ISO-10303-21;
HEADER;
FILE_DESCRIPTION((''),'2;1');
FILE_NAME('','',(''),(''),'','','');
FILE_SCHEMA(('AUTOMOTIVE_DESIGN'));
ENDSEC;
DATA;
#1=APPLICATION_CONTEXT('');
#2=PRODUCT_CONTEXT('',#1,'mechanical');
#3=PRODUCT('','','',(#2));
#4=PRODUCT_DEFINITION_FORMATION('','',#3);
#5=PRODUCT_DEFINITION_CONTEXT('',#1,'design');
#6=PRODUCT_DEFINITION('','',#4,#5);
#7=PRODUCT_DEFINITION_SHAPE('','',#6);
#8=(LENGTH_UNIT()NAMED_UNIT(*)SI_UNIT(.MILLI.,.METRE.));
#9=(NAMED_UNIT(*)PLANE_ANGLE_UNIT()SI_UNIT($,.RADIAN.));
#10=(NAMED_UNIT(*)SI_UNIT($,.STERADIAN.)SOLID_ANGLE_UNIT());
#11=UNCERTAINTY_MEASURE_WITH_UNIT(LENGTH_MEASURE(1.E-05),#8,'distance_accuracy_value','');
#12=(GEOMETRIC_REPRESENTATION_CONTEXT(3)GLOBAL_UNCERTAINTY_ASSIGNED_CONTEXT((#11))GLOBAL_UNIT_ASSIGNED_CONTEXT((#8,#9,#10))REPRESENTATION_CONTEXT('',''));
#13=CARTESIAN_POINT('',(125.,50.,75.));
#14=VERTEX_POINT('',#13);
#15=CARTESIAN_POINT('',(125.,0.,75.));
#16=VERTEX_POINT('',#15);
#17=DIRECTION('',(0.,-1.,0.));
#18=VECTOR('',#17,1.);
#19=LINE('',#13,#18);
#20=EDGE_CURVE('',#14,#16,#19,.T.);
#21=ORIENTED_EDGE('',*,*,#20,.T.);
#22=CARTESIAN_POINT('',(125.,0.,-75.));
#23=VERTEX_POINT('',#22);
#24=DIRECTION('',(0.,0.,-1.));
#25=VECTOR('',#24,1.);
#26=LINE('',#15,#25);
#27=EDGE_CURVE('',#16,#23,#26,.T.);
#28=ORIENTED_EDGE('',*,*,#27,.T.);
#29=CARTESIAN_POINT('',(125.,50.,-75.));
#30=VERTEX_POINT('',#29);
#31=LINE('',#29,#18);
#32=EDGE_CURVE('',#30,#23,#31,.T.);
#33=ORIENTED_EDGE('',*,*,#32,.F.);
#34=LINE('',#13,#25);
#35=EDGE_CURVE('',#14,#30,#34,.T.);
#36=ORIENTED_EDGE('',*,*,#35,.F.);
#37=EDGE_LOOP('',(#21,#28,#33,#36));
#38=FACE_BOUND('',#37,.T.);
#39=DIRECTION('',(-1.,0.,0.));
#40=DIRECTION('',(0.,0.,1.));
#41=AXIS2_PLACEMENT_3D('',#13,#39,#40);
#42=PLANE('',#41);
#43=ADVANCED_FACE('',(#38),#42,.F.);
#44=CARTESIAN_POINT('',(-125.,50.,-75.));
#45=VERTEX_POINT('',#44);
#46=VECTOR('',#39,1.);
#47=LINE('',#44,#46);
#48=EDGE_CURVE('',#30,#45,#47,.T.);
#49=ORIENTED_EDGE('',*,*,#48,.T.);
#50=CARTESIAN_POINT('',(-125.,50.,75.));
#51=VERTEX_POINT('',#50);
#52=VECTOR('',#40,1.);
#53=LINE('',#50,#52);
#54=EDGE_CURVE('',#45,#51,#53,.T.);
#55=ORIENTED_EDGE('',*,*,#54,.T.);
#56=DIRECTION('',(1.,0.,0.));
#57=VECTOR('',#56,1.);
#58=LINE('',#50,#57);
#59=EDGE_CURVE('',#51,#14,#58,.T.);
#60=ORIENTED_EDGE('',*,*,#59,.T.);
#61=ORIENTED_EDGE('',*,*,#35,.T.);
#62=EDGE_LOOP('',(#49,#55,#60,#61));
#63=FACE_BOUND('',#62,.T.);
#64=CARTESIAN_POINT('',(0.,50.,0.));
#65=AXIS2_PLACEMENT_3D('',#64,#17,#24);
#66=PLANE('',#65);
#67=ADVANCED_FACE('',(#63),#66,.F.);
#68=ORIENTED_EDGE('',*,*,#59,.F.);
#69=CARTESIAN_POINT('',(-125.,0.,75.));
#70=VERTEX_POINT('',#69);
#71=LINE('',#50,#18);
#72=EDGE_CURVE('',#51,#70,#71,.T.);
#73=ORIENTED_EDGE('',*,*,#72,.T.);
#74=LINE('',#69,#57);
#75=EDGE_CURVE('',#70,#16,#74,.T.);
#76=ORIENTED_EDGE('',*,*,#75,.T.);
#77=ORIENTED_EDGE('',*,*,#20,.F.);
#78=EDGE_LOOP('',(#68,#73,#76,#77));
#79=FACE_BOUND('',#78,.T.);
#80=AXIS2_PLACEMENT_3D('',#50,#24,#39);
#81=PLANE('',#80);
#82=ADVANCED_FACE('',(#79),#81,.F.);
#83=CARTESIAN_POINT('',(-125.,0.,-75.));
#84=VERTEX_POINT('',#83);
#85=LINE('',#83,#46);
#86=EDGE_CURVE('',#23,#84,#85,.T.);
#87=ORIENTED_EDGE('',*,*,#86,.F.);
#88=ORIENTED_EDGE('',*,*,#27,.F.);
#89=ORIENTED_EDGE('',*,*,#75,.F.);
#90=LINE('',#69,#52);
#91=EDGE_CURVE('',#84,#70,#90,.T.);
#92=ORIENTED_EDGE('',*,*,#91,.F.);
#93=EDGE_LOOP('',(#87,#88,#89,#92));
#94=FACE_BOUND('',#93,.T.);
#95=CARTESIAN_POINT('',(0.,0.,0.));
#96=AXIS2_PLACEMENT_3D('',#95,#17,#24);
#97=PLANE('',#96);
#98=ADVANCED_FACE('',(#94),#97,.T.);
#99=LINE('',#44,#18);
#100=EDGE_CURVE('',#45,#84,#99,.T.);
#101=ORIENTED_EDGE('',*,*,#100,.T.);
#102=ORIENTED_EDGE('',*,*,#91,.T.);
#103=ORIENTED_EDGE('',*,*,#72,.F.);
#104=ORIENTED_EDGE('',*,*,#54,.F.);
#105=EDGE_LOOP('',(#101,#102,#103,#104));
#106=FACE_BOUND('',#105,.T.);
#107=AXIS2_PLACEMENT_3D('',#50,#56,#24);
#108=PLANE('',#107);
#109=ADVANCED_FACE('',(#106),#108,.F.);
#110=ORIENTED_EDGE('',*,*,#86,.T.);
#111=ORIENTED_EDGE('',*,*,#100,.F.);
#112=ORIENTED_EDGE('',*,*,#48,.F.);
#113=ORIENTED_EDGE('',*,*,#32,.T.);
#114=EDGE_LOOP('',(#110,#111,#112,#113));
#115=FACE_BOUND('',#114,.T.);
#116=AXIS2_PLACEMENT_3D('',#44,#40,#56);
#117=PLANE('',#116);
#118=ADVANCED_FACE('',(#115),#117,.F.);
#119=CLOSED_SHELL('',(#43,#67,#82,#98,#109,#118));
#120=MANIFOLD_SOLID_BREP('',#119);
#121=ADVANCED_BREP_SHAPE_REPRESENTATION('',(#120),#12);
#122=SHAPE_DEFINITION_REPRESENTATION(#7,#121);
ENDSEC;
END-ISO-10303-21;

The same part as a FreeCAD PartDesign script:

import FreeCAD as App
import Part
import Sketcher
Q = App.Units.Quantity

doc = App.newDocument("Part")
body = doc.addObject("PartDesign::Body", "Body")

# Sketch on XZ plane
sketch1 = body.newObject("Sketcher::SketchObject", "Sketch")
sketch1.AttachmentSupport = (doc.getObject("XZ_Plane"), [""])
sketch1.MapMode = "FlatFace"
sketch1.addGeometry([
    Part.LineSegment(App.Vector(-125, -75, 0), App.Vector(-125, 75, 0)),
    Part.LineSegment(App.Vector(-125, 75, 0), App.Vector(125, 75, 0)),
    Part.LineSegment(App.Vector(125, 75, 0), App.Vector(125, -75, 0)),
    Part.LineSegment(App.Vector(125, -75, 0), App.Vector(-125, -75, 0)),
], False)
sketch1.addConstraint([
    Sketcher.Constraint("Coincident", 0, 2, 1, 1),
    Sketcher.Constraint("Coincident", 1, 2, 2, 1),
    Sketcher.Constraint("Coincident", 2, 2, 3, 1),
    Sketcher.Constraint("Coincident", 3, 2, 0, 1),
    Sketcher.Constraint("Vertical", 0),
    Sketcher.Constraint("Horizontal", 1),
    Sketcher.Constraint("Vertical", 2),
    Sketcher.Constraint("Horizontal", 3),
    Sketcher.Constraint("Symmetric", 0, 2, 2, 2, -1, 1),
    Sketcher.Constraint("DistanceX", 1, 1, 1, 2, Q("250 mm")),
    Sketcher.Constraint("DistanceY", 0, 1, 0, 2, Q("150 mm")),
])
pad1 = body.newObject("PartDesign::Pad", "Pad")
pad1.Profile = sketch1
pad1.Length = 50
pad1.Reversed = True

doc.recompute()
